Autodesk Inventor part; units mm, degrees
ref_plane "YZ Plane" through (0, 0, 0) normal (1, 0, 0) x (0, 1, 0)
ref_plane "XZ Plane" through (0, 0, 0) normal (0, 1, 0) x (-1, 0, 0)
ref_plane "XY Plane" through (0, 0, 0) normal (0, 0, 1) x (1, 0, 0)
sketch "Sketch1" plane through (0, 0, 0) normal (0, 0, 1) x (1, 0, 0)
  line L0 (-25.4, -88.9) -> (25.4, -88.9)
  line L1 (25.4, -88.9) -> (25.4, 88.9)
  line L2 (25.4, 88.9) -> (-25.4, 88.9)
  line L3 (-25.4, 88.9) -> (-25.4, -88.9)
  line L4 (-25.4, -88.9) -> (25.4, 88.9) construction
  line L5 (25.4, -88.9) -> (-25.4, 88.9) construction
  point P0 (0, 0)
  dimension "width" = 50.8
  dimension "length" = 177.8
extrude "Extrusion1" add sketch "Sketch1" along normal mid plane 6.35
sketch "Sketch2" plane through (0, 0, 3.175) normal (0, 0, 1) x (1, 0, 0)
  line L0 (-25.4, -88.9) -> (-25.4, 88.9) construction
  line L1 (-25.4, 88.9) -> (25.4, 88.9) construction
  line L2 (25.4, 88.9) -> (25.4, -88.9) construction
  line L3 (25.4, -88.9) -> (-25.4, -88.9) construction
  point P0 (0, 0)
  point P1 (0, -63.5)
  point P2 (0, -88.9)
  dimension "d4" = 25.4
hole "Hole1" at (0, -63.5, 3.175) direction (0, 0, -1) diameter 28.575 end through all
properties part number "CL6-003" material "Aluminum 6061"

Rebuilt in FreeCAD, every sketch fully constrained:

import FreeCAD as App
import Part
import Sketcher
from FreeCAD import Vector
Q = App.Units.Quantity

doc = App.newDocument("Part")
body = doc.addObject("PartDesign::Body", "Body")

# Sketch on XY plane
sketch1 = body.newObject("Sketcher::SketchObject", "Sketch")
sketch1.AttachmentSupport = (doc.getObject("XY_Plane"), [""])
sketch1.MapMode = "FlatFace"
sketch1.addGeometry(Part.LineSegment(Vector(-25.4, 88.9, 0), Vector(-25.4, -88.9, 0)), False)
sketch1.addGeometry(Part.LineSegment(Vector(-25.4, -88.9, 0), Vector(25.4, -88.9, 0)), False)
sketch1.addGeometry(Part.LineSegment(Vector(25.4, -88.9, 0), Vector(25.4, 88.9, 0)), False)
sketch1.addGeometry(Part.LineSegment(Vector(25.4, 88.9, 0), Vector(-25.4, 88.9, 0)), False)
sketch1.addConstraint(Sketcher.Constraint("Coincident", 0, 2, 1, 1))
sketch1.addConstraint(Sketcher.Constraint("Coincident", 1, 2, 2, 1))
sketch1.addConstraint(Sketcher.Constraint("Coincident", 2, 2, 3, 1))
sketch1.addConstraint(Sketcher.Constraint("Coincident", 3, 2, 0, 1))
sketch1.addConstraint(Sketcher.Constraint("Vertical", 0))
sketch1.addConstraint(Sketcher.Constraint("Horizontal", 1))
sketch1.addConstraint(Sketcher.Constraint("Vertical", 2))
sketch1.addConstraint(Sketcher.Constraint("Horizontal", 3))
sketch1.addConstraint(Sketcher.Constraint("Symmetric", 0, 2, 2, 2, -1, 1))
sketch1.addConstraint(Sketcher.Constraint("DistanceX", 1, 1, 1, 2, Q("2 in")))
sketch1.addConstraint(Sketcher.Constraint("DistanceY", 0, 2, 0, 1, Q("7 in")))
pad1 = body.newObject("PartDesign::Pad", "Pad")
pad1.Profile = sketch1
pad1.Length = Q("0.25 in")
pad1.Midplane = True

# Sketch on XY plane
sketch2 = body.newObject("Sketcher::SketchObject", "Sketch001")
sketch2.AttachmentSupport = (doc.getObject("XY_Plane"), [""])
sketch2.MapMode = "FlatFace"
sketch2.AttachmentOffset = App.Placement(Vector(0, 0, 0.125 * 25.4), App.Rotation())
sketch2.addGeometry(Part.Circle(Vector(0, -63.5, 0), Vector(0, 0, 1), 14.2875), False)
sketch2.addConstraint(Sketcher.Constraint("PointOnObject", 0, 3, -2))
sketch2.addConstraint(Sketcher.Constraint("Diameter", 0, Q("1.125 in")))
sketch2.addConstraint(Sketcher.Constraint("DistanceY", 0, 3, -1, 1, Q("2.5 in")))
doc.recompute()
hole = body.newObject("PartDesign::Hole", "Hole")
hole.Profile = sketch2
hole.ThreadType = "None"
hole.Diameter = Q("1.125 in")
hole.DepthType = "ThroughAll"

doc.recompute()
